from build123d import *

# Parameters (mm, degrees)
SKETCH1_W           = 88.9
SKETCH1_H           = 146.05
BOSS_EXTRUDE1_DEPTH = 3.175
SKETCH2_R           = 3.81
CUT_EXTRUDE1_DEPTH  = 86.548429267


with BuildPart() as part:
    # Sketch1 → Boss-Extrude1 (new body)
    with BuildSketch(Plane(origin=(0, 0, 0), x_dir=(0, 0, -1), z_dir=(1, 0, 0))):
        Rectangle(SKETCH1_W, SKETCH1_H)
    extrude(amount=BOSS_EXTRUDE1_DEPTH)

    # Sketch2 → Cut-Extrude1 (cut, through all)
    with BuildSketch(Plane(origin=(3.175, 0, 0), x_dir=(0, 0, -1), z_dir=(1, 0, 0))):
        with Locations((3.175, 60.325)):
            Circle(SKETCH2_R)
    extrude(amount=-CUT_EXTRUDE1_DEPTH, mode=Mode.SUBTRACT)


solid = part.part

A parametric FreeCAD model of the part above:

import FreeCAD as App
import Part
import Sketcher
Q = App.Units.Quantity

doc = App.newDocument("Part")
body = doc.addObject("PartDesign::Body", "Body")

# Sketch on YZ plane
sketch1 = body.newObject("Sketcher::SketchObject", "Sketch")
sketch1.AttachmentSupport = (doc.getObject("YZ_Plane"), [""])
sketch1.MapMode = "FlatFace"
sketch1.addGeometry([
    Part.LineSegment(App.Vector(73, 44, 0), App.Vector(-73, 44, 0)),
    Part.LineSegment(App.Vector(-73, 44, 0), App.Vector(-73, -44, 0)),
    Part.LineSegment(App.Vector(-73, -44, 0), App.Vector(73, -44, 0)),
    Part.LineSegment(App.Vector(73, -44, 0), App.Vector(73, 44, 0)),
], False)
sketch1.addConstraint([
    Sketcher.Constraint("Coincident", 0, 2, 1, 1),
    Sketcher.Constraint("Coincident", 1, 2, 2, 1),
    Sketcher.Constraint("Coincident", 2, 2, 3, 1),
    Sketcher.Constraint("Coincident", 3, 2, 0, 1),
    Sketcher.Constraint("Horizontal", 0),
    Sketcher.Constraint("Vertical", 1),
    Sketcher.Constraint("Horizontal", 2),
    Sketcher.Constraint("Vertical", 3),
    Sketcher.Constraint("Symmetric", 0, 2, 2, 2, -1, 1),
    Sketcher.Constraint("DistanceY", 1, 2, 1, 1, Q("3.5 in")),
    Sketcher.Constraint("DistanceX", 0, 2, 0, 1, Q("5.75 in")),
])
pad1 = body.newObject("PartDesign::Pad", "Pad")
pad1.Profile = sketch1
pad1.Length = Q("0.125 in")

# Sketch on YZ plane
sketch2 = body.newObject("Sketcher::SketchObject", "Sketch001")
sketch2.AttachmentSupport = (doc.getObject("YZ_Plane"), [""])
sketch2.MapMode = "FlatFace"
sketch2.AttachmentOffset = App.Placement(App.Vector(0, 0, 0.125 * 25.4), App.Rotation())
sketch2.addGeometry(Part.Circle(App.Vector(60.3, -3.2, 0), App.Vector(0, 0, 1), 3.8), False)
sketch2.addConstraint([
    Sketcher.Constraint("Diameter", 0, Q("0.3 in")),
    Sketcher.Constraint("DistanceX", -1, 1, 0, 3, Q("2.375 in")),
    Sketcher.Constraint("DistanceY", 0, 3, -1, 1, Q("0.125 in")),
])
pocket1 = body.newObject("PartDesign::Pocket", "Pocket")
pocket1.Profile = sketch2
pocket1.Type = "ThroughAll"

doc.recompute()
